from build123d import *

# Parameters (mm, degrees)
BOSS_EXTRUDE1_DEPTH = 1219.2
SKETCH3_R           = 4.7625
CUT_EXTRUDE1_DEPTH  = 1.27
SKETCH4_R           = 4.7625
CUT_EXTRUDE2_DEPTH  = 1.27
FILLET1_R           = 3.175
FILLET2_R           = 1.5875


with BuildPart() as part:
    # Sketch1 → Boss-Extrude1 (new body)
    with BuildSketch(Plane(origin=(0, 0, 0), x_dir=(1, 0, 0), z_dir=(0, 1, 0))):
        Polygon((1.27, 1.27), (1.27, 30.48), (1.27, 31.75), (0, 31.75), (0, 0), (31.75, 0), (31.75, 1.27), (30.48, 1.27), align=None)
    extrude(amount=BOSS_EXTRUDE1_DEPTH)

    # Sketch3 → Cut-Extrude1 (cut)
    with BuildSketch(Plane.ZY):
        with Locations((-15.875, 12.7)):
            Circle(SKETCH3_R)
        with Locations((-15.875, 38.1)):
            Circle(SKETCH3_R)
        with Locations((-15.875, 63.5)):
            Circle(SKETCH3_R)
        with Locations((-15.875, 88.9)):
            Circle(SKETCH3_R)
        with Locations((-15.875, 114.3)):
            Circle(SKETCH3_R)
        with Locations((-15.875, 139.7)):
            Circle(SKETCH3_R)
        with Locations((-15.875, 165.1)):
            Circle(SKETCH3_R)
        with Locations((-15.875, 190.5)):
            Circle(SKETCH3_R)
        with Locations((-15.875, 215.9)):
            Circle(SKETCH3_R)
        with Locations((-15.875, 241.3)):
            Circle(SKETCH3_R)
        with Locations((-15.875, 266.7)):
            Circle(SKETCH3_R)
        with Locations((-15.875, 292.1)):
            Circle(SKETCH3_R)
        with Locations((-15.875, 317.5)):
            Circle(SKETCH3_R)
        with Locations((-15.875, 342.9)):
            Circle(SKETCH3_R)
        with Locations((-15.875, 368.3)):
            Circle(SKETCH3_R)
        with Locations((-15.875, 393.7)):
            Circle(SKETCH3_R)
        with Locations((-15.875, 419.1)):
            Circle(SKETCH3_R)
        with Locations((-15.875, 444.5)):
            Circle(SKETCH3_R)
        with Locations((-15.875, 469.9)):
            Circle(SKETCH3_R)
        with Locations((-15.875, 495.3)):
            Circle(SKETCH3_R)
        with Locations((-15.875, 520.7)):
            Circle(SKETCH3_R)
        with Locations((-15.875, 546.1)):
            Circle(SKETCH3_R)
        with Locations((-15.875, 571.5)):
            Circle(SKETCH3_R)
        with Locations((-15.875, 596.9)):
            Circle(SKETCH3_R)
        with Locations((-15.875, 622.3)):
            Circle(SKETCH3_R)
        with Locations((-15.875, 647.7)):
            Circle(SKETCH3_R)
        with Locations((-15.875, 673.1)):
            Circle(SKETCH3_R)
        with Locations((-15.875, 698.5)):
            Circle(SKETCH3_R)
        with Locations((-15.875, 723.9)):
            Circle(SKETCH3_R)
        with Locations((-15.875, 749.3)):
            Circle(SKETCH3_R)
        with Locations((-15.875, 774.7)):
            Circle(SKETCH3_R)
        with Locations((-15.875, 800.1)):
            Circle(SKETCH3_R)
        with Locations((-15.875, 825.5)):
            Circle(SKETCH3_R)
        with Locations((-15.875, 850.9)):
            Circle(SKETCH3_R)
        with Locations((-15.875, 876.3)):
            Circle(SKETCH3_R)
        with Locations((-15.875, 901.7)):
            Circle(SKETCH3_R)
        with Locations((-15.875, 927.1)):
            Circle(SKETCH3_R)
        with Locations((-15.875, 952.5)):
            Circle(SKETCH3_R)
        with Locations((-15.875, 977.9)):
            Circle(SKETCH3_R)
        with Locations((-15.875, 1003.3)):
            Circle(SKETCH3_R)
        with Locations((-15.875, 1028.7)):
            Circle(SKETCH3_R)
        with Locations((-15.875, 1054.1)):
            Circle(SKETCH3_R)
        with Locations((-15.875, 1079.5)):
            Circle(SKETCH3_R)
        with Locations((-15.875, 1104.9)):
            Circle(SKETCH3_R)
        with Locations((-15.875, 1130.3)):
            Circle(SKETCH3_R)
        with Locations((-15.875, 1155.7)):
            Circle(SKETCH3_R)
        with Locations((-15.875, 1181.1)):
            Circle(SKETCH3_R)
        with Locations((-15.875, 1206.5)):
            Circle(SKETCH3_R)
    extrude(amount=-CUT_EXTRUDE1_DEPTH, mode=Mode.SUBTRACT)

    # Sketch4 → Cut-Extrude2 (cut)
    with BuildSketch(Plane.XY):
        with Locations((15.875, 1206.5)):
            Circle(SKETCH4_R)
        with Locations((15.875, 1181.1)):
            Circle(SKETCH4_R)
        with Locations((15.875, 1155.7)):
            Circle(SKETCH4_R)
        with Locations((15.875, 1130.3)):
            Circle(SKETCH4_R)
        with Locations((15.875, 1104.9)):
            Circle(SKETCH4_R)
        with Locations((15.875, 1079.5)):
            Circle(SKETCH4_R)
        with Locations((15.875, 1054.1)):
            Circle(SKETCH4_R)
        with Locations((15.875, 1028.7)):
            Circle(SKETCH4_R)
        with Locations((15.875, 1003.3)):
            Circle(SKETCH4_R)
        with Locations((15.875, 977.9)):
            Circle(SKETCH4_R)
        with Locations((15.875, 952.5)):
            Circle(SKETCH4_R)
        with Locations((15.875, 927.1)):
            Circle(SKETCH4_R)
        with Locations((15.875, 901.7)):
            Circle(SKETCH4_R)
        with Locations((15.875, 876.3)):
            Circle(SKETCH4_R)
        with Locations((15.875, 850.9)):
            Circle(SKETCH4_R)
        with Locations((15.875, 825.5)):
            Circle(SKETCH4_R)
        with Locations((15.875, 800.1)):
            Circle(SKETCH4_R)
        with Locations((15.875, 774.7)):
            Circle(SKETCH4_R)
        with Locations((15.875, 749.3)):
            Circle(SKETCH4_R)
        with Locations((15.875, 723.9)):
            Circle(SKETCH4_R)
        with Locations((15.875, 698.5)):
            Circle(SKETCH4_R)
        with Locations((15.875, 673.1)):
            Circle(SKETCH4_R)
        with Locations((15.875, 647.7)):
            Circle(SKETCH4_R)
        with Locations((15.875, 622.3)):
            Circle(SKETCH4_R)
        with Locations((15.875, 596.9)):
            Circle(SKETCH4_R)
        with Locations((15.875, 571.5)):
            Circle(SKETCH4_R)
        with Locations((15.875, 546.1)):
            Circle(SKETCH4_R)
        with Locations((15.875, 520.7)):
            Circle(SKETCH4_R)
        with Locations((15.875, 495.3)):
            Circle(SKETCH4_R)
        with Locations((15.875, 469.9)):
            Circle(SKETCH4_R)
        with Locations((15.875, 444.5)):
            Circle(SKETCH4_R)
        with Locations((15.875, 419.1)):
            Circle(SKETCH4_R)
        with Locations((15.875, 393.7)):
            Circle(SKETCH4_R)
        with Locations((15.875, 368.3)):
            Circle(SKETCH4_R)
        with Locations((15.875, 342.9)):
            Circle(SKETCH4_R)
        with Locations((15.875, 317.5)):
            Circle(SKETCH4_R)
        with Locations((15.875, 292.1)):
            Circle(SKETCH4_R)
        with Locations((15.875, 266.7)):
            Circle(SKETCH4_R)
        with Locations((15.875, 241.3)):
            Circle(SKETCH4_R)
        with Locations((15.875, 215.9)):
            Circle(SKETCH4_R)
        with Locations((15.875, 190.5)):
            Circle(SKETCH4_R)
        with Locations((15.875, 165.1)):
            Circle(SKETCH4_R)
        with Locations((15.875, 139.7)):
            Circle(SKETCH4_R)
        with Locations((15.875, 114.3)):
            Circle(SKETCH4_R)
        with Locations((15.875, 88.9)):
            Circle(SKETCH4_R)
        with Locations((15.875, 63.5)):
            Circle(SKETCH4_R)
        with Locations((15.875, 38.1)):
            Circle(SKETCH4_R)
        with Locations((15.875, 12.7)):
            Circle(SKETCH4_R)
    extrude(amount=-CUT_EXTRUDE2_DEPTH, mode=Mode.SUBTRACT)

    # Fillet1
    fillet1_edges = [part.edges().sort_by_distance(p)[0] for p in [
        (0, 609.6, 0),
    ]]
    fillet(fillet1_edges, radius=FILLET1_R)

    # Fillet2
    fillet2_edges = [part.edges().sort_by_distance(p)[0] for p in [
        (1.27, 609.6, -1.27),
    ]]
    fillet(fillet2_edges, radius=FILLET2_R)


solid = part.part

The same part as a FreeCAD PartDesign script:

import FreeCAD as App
import Part
import Sketcher
from FreeCAD import Vector
Q = App.Units.Quantity


def edges_at(feature, points):
    """Names of the edges that pass closest to the given points."""
    edges = feature.Shape.Edges
    near = lambda p: min(range(len(edges)), key=lambda i: edges[i].distToShape(Part.Vertex(*p))[0])
    return sorted({f"Edge{near(p) + 1}" for p in points})


def add_polygon(sketch, points):
    """Adds a closed chain of lines whose ends are joined by coincident constraints."""
    first, n = sketch.GeometryCount, len(points)
    for a, b in zip(points, points[1:] + points[:1]):
        sketch.addGeometry(Part.LineSegment(App.Vector(*a, 0), App.Vector(*b, 0)), False)
    for i in range(n):
        sketch.addConstraint(Sketcher.Constraint("Coincident", first + i, 2, first + (i + 1) % n, 1))

doc = App.newDocument("Part")
body = doc.addObject("PartDesign::Body", "Body")

sketch1 = doc.addObject("Sketcher::SketchObject", "Sketch")
body.addObject(sketch1)
sketch1.AttachmentSupport = (doc.XZ_Plane, [""])
sketch1.MapMode = "FlatFace"
add_polygon(sketch1, [(1.3, -1.3), (1.3, -31.8), (0, -31.8), (0, 0), (31.8, 0), (31.8, -1.3)])
sketch1.addConstraint(Sketcher.Constraint("Vertical", 0))
sketch1.addConstraint(Sketcher.Constraint("Horizontal", 1))
sketch1.addConstraint(Sketcher.Constraint("Vertical", 2))
sketch1.addConstraint(Sketcher.Constraint("Horizontal", 3))
sketch1.addConstraint(Sketcher.Constraint("Vertical", 4))
sketch1.addConstraint(Sketcher.Constraint("Horizontal", 5))
sketch1.addConstraint(Sketcher.Constraint("Coincident", 2, 2, -1, 1))
sketch1.addConstraint(Sketcher.Constraint("Equal", 5, 0))
sketch1.addConstraint(Sketcher.Constraint("Equal", 3, 2))
sketch1.addConstraint(Sketcher.Constraint("DistanceX", 5, 2, 5, 1, Q("1.2 in")))
sketch1.addConstraint(Sketcher.Constraint("DistanceX", 1, 2, 1, 1, Q("0.05 in")))
pad1 = doc.addObject("PartDesign::Pad", "Pad")
body.addObject(pad1)
pad1.Profile = sketch1
pad1.Length = Q("48 in")
pad1.Reversed = True

sketch2 = doc.addObject("Sketcher::SketchObject", "Sketch001")
body.addObject(sketch2)
sketch2.AttachmentSupport = (doc.YZ_Plane, [""])
sketch2.MapMode = "FlatFace"
sketch2.addGeometry(Part.Circle(Vector(12.7, -15.9, 0), Vector(0, 0, 1), 4.8), False)
sketch2.addGeometry(Part.Circle(Vector(38.1, -15.9, 0), Vector(0, 0, 1), 4.8), False)
sketch2.addGeometry(Part.Circle(Vector(63.5, -15.9, 0), Vector(0, 0, 1), 4.8), False)
sketch2.addGeometry(Part.Circle(Vector(88.9, -15.9, 0), Vector(0, 0, 1), 4.8), False)
sketch2.addGeometry(Part.Circle(Vector(114.3, -15.9, 0), Vector(0, 0, 1), 4.8), False)
sketch2.addGeometry(Part.Circle(Vector(139.7, -15.9, 0), Vector(0, 0, 1), 4.8), False)
sketch2.addGeometry(Part.Circle(Vector(165.1, -15.9, 0), Vector(0, 0, 1), 4.8), False)
sketch2.addGeometry(Part.Circle(Vector(190.5, -15.9, 0), Vector(0, 0, 1), 4.8), False)
sketch2.addGeometry(Part.Circle(Vector(215.9, -15.9, 0), Vector(0, 0, 1), 4.8), False)
sketch2.addGeometry(Part.Circle(Vector(241.3, -15.9, 0), Vector(0, 0, 1), 4.8), False)
sketch2.addGeometry(Part.Circle(Vector(266.7, -15.9, 0), Vector(0, 0, 1), 4.8), False)
sketch2.addGeometry(Part.Circle(Vector(292.1, -15.9, 0), Vector(0, 0, 1), 4.8), False)
sketch2.addGeometry(Part.Circle(Vector(317.5, -15.9, 0), Vector(0, 0, 1), 4.8), False)
sketch2.addGeometry(Part.Circle(Vector(342.9, -15.9, 0), Vector(0, 0, 1), 4.8), False)
sketch2.addGeometry(Part.Circle(Vector(368.3, -15.9, 0), Vector(0, 0, 1), 4.8), False)
sketch2.addGeometry(Part.Circle(Vector(393.7, -15.9, 0), Vector(0, 0, 1), 4.8), False)
sketch2.addGeometry(Part.Circle(Vector(419.1, -15.9, 0), Vector(0, 0, 1), 4.8), False)
sketch2.addGeometry(Part.Circle(Vector(444.5, -15.9, 0), Vector(0, 0, 1), 4.8), False)
sketch2.addGeometry(Part.Circle(Vector(469.9, -15.9, 0), Vector(0, 0, 1), 4.8), False)
sketch2.addGeometry(Part.Circle(Vector(495.3, -15.9, 0), Vector(0, 0, 1), 4.8), False)
sketch2.addGeometry(Part.Circle(Vector(520.7, -15.9, 0), Vector(0, 0, 1), 4.8), False)
sketch2.addGeometry(Part.Circle(Vector(546.1, -15.9, 0), Vector(0, 0, 1), 4.8), False)
sketch2.addGeometry(Part.Circle(Vector(571.5, -15.9, 0), Vector(0, 0, 1), 4.8), False)
sketch2.addGeometry(Part.Circle(Vector(596.9, -15.9, 0), Vector(0, 0, 1), 4.8), False)
sketch2.addGeometry(Part.Circle(Vector(622.3, -15.9, 0), Vector(0, 0, 1), 4.8), False)
sketch2.addGeometry(Part.Circle(Vector(647.7, -15.9, 0), Vector(0, 0, 1), 4.8), False)
sketch2.addGeometry(Part.Circle(Vector(673.1, -15.9, 0), Vector(0, 0, 1), 4.8), False)
sketch2.addGeometry(Part.Circle(Vector(698.5, -15.9, 0), Vector(0, 0, 1), 4.8), False)
sketch2.addGeometry(Part.Circle(Vector(723.9, -15.9, 0), Vector(0, 0, 1), 4.8), False)
sketch2.addGeometry(Part.Circle(Vector(749.3, -15.9, 0), Vector(0, 0, 1), 4.8), False)
sketch2.addGeometry(Part.Circle(Vector(774.7, -15.9, 0), Vector(0, 0, 1), 4.8), False)
sketch2.addGeometry(Part.Circle(Vector(800.1, -15.9, 0), Vector(0, 0, 1), 4.8), False)
sketch2.addGeometry(Part.Circle(Vector(825.5, -15.9, 0), Vector(0, 0, 1), 4.8), False)
sketch2.addGeometry(Part.Circle(Vector(850.9, -15.9, 0), Vector(0, 0, 1), 4.8), False)
sketch2.addGeometry(Part.Circle(Vector(876.3, -15.9, 0), Vector(0, 0, 1), 4.8), False)
sketch2.addGeometry(Part.Circle(Vector(901.7, -15.9, 0), Vector(0, 0, 1), 4.8), False)
sketch2.addGeometry(Part.Circle(Vector(927.1, -15.9, 0), Vector(0, 0, 1), 4.8), False)
sketch2.addGeometry(Part.Circle(Vector(952.5, -15.9, 0), Vector(0, 0, 1), 4.8), False)
sketch2.addGeometry(Part.Circle(Vector(977.9, -15.9, 0), Vector(0, 0, 1), 4.8), False)
sketch2.addGeometry(Part.Circle(Vector(1003.3, -15.9, 0), Vector(0, 0, 1), 4.8), False)
sketch2.addGeometry(Part.Circle(Vector(1028.7, -15.9, 0), Vector(0, 0, 1), 4.8), False)
sketch2.addGeometry(Part.Circle(Vector(1054.1, -15.9, 0), Vector(0, 0, 1), 4.8), False)
sketch2.addGeometry(Part.Circle(Vector(1079.5, -15.9, 0), Vector(0, 0, 1), 4.8), False)
sketch2.addGeometry(Part.Circle(Vector(1104.9, -15.9, 0), Vector(0, 0, 1), 4.8), False)
sketch2.addGeometry(Part.Circle(Vector(1130.3, -15.9, 0), Vector(0, 0, 1), 4.8), False)
sketch2.addGeometry(Part.Circle(Vector(1155.7, -15.9, 0), Vector(0, 0, 1), 4.8), False)
sketch2.addGeometry(Part.Circle(Vector(1181.1, -15.9, 0), Vector(0, 0, 1), 4.8), False)
sketch2.addGeometry(Part.Circle(Vector(1206.5, -15.9, 0), Vector(0, 0, 1), 4.8), False)
sketch2.addConstraint(Sketcher.Constraint("Equal", 0, 1))
sketch2.addConstraint(Sketcher.Constraint("Equal", 1, 2))
sketch2.addConstraint(Sketcher.Constraint("Equal", 2, 3))
sketch2.addConstraint(Sketcher.Constraint("Equal", 3, 4))
sketch2.addConstraint(Sketcher.Constraint("Equal", 4, 5))
sketch2.addConstraint(Sketcher.Constraint("Equal", 5, 6))
sketch2.addConstraint(Sketcher.Constraint("Equal", 6, 7))
sketch2.addConstraint(Sketcher.Constraint("Equal", 7, 8))
sketch2.addConstraint(Sketcher.Constraint("Equal", 8, 9))
sketch2.addConstraint(Sketcher.Constraint("Equal", 9, 10))
sketch2.addConstraint(Sketcher.Constraint("Equal", 10, 11))
sketch2.addConstraint(Sketcher.Constraint("Equal", 11, 12))
sketch2.addConstraint(Sketcher.Constraint("Equal", 12, 13))
sketch2.addConstraint(Sketcher.Constraint("Equal", 13, 14))
sketch2.addConstraint(Sketcher.Constraint("Equal", 14, 15))
sketch2.addConstraint(Sketcher.Constraint("Equal", 15, 16))
sketch2.addConstraint(Sketcher.Constraint("Equal", 16, 17))
sketch2.addConstraint(Sketcher.Constraint("Equal", 17, 18))
sketch2.addConstraint(Sketcher.Constraint("Equal", 18, 19))
sketch2.addConstraint(Sketcher.Constraint("Equal", 19, 20))
sketch2.addConstraint(Sketcher.Constraint("Equal", 20, 21))
sketch2.addConstraint(Sketcher.Constraint("Equal", 21, 22))
sketch2.addConstraint(Sketcher.Constraint("Equal", 22, 23))
sketch2.addConstraint(Sketcher.Constraint("Equal", 23, 24))
sketch2.addConstraint(Sketcher.Constraint("Equal", 24, 25))
sketch2.addConstraint(Sketcher.Constraint("Equal", 25, 26))
sketch2.addConstraint(Sketcher.Constraint("Equal", 26, 27))
sketch2.addConstraint(Sketcher.Constraint("Equal", 27, 28))
sketch2.addConstraint(Sketcher.Constraint("Equal", 28, 29))
sketch2.addConstraint(Sketcher.Constraint("Equal", 29, 30))
sketch2.addConstraint(Sketcher.Constraint("Equal", 30, 31))
sketch2.addConstraint(Sketcher.Constraint("Equal", 31, 32))
sketch2.addConstraint(Sketcher.Constraint("Equal", 32, 33))
sketch2.addConstraint(Sketcher.Constraint("Equal", 33, 34))
sketch2.addConstraint(Sketcher.Constraint("Equal", 34, 35))
sketch2.addConstraint(Sketcher.Constraint("Equal", 35, 36))
sketch2.addConstraint(Sketcher.Constraint("Equal", 36, 37))
sketch2.addConstraint(Sketcher.Constraint("Equal", 37, 38))
sketch2.addConstraint(Sketcher.Constraint("Equal", 38, 39))
sketch2.addConstraint(Sketcher.Constraint("Equal", 39, 40))
sketch2.addConstraint(Sketcher.Constraint("Equal", 40, 41))
sketch2.addConstraint(Sketcher.Constraint("Equal", 41, 42))
sketch2.addConstraint(Sketcher.Constraint("Equal", 42, 43))
sketch2.addConstraint(Sketcher.Constraint("Equal", 43, 44))
sketch2.addConstraint(Sketcher.Constraint("Equal", 44, 45))
sketch2.addConstraint(Sketcher.Constraint("Equal", 45, 46))
sketch2.addConstraint(Sketcher.Constraint("Equal", 46, 47))
sketch2.addConstraint(Sketcher.Constraint("Horizontal", 0, 3, 1, 3))
sketch2.addConstraint(Sketcher.Constraint("Horizontal", 1, 3, 2, 3))
sketch2.addConstraint(Sketcher.Constraint("Horizontal", 2, 3, 3, 3))
sketch2.addConstraint(Sketcher.Constraint("Horizontal", 3, 3, 4, 3))
sketch2.addConstraint(Sketcher.Constraint("Horizontal", 4, 3, 5, 3))
sketch2.addConstraint(Sketcher.Constraint("Horizontal", 5, 3, 6, 3))
sketch2.addConstraint(Sketcher.Constraint("Horizontal", 6, 3, 7, 3))
sketch2.addConstraint(Sketcher.Constraint("Horizontal", 7, 3, 8, 3))
sketch2.addConstraint(Sketcher.Constraint("Horizontal", 8, 3, 9, 3))
sketch2.addConstraint(Sketcher.Constraint("Horizontal", 9, 3, 10, 3))
sketch2.addConstraint(Sketcher.Constraint("Horizontal", 10, 3, 11, 3))
sketch2.addConstraint(Sketcher.Constraint("Horizontal", 11, 3, 12, 3))
sketch2.addConstraint(Sketcher.Constraint("Horizontal", 12, 3, 13, 3))
sketch2.addConstraint(Sketcher.Constraint("Horizontal", 13, 3, 14, 3))
sketch2.addConstraint(Sketcher.Constraint("Horizontal", 14, 3, 15, 3))
sketch2.addConstraint(Sketcher.Constraint("Horizontal", 15, 3, 16, 3))
sketch2.addConstraint(Sketcher.Constraint("Horizontal", 16, 3, 17, 3))
sketch2.addConstraint(Sketcher.Constraint("Horizontal", 17, 3, 18, 3))
sketch2.addConstraint(Sketcher.Constraint("Horizontal", 18, 3, 19, 3))
sketch2.addConstraint(Sketcher.Constraint("Horizontal", 19, 3, 20, 3))
sketch2.addConstraint(Sketcher.Constraint("Horizontal", 20, 3, 21, 3))
sketch2.addConstraint(Sketcher.Constraint("Horizontal", 21, 3, 22, 3))
sketch2.addConstraint(Sketcher.Constraint("Horizontal", 22, 3, 23, 3))
sketch2.addConstraint(Sketcher.Constraint("Horizontal", 23, 3, 24, 3))
sketch2.addConstraint(Sketcher.Constraint("Horizontal", 24, 3, 25, 3))
sketch2.addConstraint(Sketcher.Constraint("Horizontal", 25, 3, 26, 3))
sketch2.addConstraint(Sketcher.Constraint("Horizontal", 26, 3, 27, 3))
sketch2.addConstraint(Sketcher.Constraint("Horizontal", 27, 3, 28, 3))
sketch2.addConstraint(Sketcher.Constraint("Horizontal", 28, 3, 29, 3))
sketch2.addConstraint(Sketcher.Constraint("Horizontal", 29, 3, 30, 3))
sketch2.addConstraint(Sketcher.Constraint("Horizontal", 30, 3, 31, 3))
sketch2.addConstraint(Sketcher.Constraint("Horizontal", 31, 3, 32, 3))
sketch2.addConstraint(Sketcher.Constraint("Horizontal", 32, 3, 33, 3))
sketch2.addConstraint(Sketcher.Constraint("Horizontal", 33, 3, 34, 3))
sketch2.addConstraint(Sketcher.Constraint("Horizontal", 34, 3, 35, 3))
sketch2.addConstraint(Sketcher.Constraint("Horizontal", 35, 3, 36, 3))
sketch2.addConstraint(Sketcher.Constraint("Horizontal", 36, 3, 37, 3))
sketch2.addConstraint(Sketcher.Constraint("Horizontal", 37, 3, 38, 3))
sketch2.addConstraint(Sketcher.Constraint("Horizontal", 38, 3, 39, 3))
sketch2.addConstraint(Sketcher.Constraint("Horizontal", 39, 3, 40, 3))
sketch2.addConstraint(Sketcher.Constraint("Horizontal", 40, 3, 41, 3))
sketch2.addConstraint(Sketcher.Constraint("Horizontal", 41, 3, 42, 3))
sketch2.addConstraint(Sketcher.Constraint("Horizontal", 42, 3, 43, 3))
sketch2.addConstraint(Sketcher.Constraint("Horizontal", 43, 3, 44, 3))
sketch2.addConstraint(Sketcher.Constraint("Horizontal", 44, 3, 45, 3))
sketch2.addConstraint(Sketcher.Constraint("Horizontal", 45, 3, 46, 3))
sketch2.addConstraint(Sketcher.Constraint("Horizontal", 46, 3, 47, 3))
sketch2.addConstraint(Sketcher.Constraint("Diameter", 0, Q("0.375 in")))
sketch2.addConstraint(Sketcher.Constraint("DistanceX", 0, 3, 1, 3, Q("1 in")))
sketch2.addConstraint(Sketcher.Constraint("DistanceX", 1, 3, 2, 3, Q("1 in")))
sketch2.addConstraint(Sketcher.Constraint("DistanceX", 2, 3, 3, 3, Q("1 in")))
sketch2.addConstraint(Sketcher.Constraint("DistanceX", 3, 3, 4, 3, Q("1 in")))
sketch2.addConstraint(Sketcher.Constraint("DistanceX", 4, 3, 5, 3, Q("1 in")))
sketch2.addConstraint(Sketcher.Constraint("DistanceX", 5, 3, 6, 3, Q("1 in")))
sketch2.addConstraint(Sketcher.Constraint("DistanceX", 6, 3, 7, 3, Q("1 in")))
sketch2.addConstraint(Sketcher.Constraint("DistanceX", 7, 3, 8, 3, Q("1 in")))
sketch2.addConstraint(Sketcher.Constraint("DistanceX", 8, 3, 9, 3, Q("1 in")))
sketch2.addConstraint(Sketcher.Constraint("DistanceX", 9, 3, 10, 3, Q("1 in")))
sketch2.addConstraint(Sketcher.Constraint("DistanceX", 10, 3, 11, 3, Q("1 in")))
sketch2.addConstraint(Sketcher.Constraint("DistanceX", 11, 3, 12, 3, Q("1 in")))
sketch2.addConstraint(Sketcher.Constraint("DistanceX", 12, 3, 13, 3, Q("1 in")))
sketch2.addConstraint(Sketcher.Constraint("DistanceX", 13, 3, 14, 3, Q("1 in")))
sketch2.addConstraint(Sketcher.Constraint("DistanceX", 14, 3, 15, 3, Q("1 in")))
sketch2.addConstraint(Sketcher.Constraint("DistanceX", 15, 3, 16, 3, Q("1 in")))
sketch2.addConstraint(Sketcher.Constraint("DistanceX", 16, 3, 17, 3, Q("1 in")))
sketch2.addConstraint(Sketcher.Constraint("DistanceX", 17, 3, 18, 3, Q("1 in")))
sketch2.addConstraint(Sketcher.Constraint("DistanceX", 18, 3, 19, 3, Q("1 in")))
sketch2.addConstraint(Sketcher.Constraint("DistanceX", 19, 3, 20, 3, Q("1 in")))
sketch2.addConstraint(Sketcher.Constraint("DistanceX", 20, 3, 21, 3, Q("1 in")))
sketch2.addConstraint(Sketcher.Constraint("DistanceX", 21, 3, 22, 3, Q("1 in")))
sketch2.addConstraint(Sketcher.Constraint("DistanceX", 22, 3, 23, 3, Q("1 in")))
sketch2.addConstraint(Sketcher.Constraint("DistanceX", 23, 3, 24, 3, Q("1 in")))
sketch2.addConstraint(Sketcher.Constraint("DistanceX", 24, 3, 25, 3, Q("1 in")))
sketch2.addConstraint(Sketcher.Constraint("DistanceX", 25, 3, 26, 3, Q("1 in")))
sketch2.addConstraint(Sketcher.Constraint("DistanceX", 26, 3, 27, 3, Q("1 in")))
sketch2.addConstraint(Sketcher.Constraint("DistanceX", 27, 3, 28, 3, Q("1 in")))
sketch2.addConstraint(Sketcher.Constraint("DistanceX", 28, 3, 29, 3, Q("1 in")))
sketch2.addConstraint(Sketcher.Constraint("DistanceX", 29, 3, 30, 3, Q("1 in")))
sketch2.addConstraint(Sketcher.Constraint("DistanceX", 30, 3, 31, 3, Q("1 in")))
sketch2.addConstraint(Sketcher.Constraint("DistanceX", 31, 3, 32, 3, Q("1 in")))
sketch2.addConstraint(Sketcher.Constraint("DistanceX", 32, 3, 33, 3, Q("1 in")))
sketch2.addConstraint(Sketcher.Constraint("DistanceX", 33, 3, 34, 3, Q("1 in")))
sketch2.addConstraint(Sketcher.Constraint("DistanceX", 34, 3, 35, 3, Q("1 in")))
sketch2.addConstraint(Sketcher.Constraint("DistanceX", 35, 3, 36, 3, Q("1 in")))
sketch2.addConstraint(Sketcher.Constraint("DistanceX", 36, 3, 37, 3, Q("1 in")))
sketch2.addConstraint(Sketcher.Constraint("DistanceX", 37, 3, 38, 3, Q("1 in")))
sketch2.addConstraint(Sketcher.Constraint("DistanceX", 38, 3, 39, 3, Q("1 in")))
sketch2.addConstraint(Sketcher.Constraint("DistanceX", 39, 3, 40, 3, Q("1 in")))
sketch2.addConstraint(Sketcher.Constraint("DistanceX", 40, 3, 41, 3, Q("1 in")))
sketch2.addConstraint(Sketcher.Constraint("DistanceX", 41, 3, 42, 3, Q("1 in")))
sketch2.addConstraint(Sketcher.Constraint("DistanceX", 42, 3, 43, 3, Q("1 in")))
sketch2.addConstraint(Sketcher.Constraint("DistanceX", 43, 3, 44, 3, Q("1 in")))
sketch2.addConstraint(Sketcher.Constraint("DistanceX", 44, 3, 45, 3, Q("1 in")))
sketch2.addConstraint(Sketcher.Constraint("DistanceX", 45, 3, 46, 3, Q("1 in")))
sketch2.addConstraint(Sketcher.Constraint("DistanceX", 46, 3, 47, 3, Q("1 in")))
sketch2.addConstraint(Sketcher.Constraint("DistanceX", -1, 1, 0, 3, Q("0.5 in")))
sketch2.addConstraint(Sketcher.Constraint("DistanceY", 0, 3, -1, 1, Q("0.625 in")))
pocket1 = doc.addObject("PartDesign::Pocket", "Pocket")
body.addObject(pocket1)
pocket1.Profile = sketch2
pocket1.Length = Q("0.05 in")
pocket1.Reversed = True

sketch3 = doc.addObject("Sketcher::SketchObject", "Sketch002")
body.addObject(sketch3)
sketch3.AttachmentSupport = (doc.XY_Plane, [""])
sketch3.MapMode = "FlatFace"
sketch3.addGeometry(Part.Circle(Vector(15.9, 1206.5, 0), Vector(0, 0, 1), 4.8), False)
sketch3.addGeometry(Part.Circle(Vector(15.9, 1181.1, 0), Vector(0, 0, 1), 4.8), False)
sketch3.addGeometry(Part.Circle(Vector(15.9, 1155.7, 0), Vector(0, 0, 1), 4.8), False)
sketch3.addGeometry(Part.Circle(Vector(15.9, 1130.3, 0), Vector(0, 0, 1), 4.8), False)
sketch3.addGeometry(Part.Circle(Vector(15.9, 1104.9, 0), Vector(0, 0, 1), 4.8), False)
sketch3.addGeometry(Part.Circle(Vector(15.9, 1079.5, 0), Vector(0, 0, 1), 4.8), False)
sketch3.addGeometry(Part.Circle(Vector(15.9, 1054.1, 0), Vector(0, 0, 1), 4.8), False)
sketch3.addGeometry(Part.Circle(Vector(15.9, 1028.7, 0), Vector(0, 0, 1), 4.8), False)
sketch3.addGeometry(Part.Circle(Vector(15.9, 1003.3, 0), Vector(0, 0, 1), 4.8), False)
sketch3.addGeometry(Part.Circle(Vector(15.9, 977.9, 0), Vector(0, 0, 1), 4.8), False)
sketch3.addGeometry(Part.Circle(Vector(15.9, 952.5, 0), Vector(0, 0, 1), 4.8), False)
sketch3.addGeometry(Part.Circle(Vector(15.9, 927.1, 0), Vector(0, 0, 1), 4.8), False)
sketch3.addGeometry(Part.Circle(Vector(15.9, 901.7, 0), Vector(0, 0, 1), 4.8), False)
sketch3.addGeometry(Part.Circle(Vector(15.9, 876.3, 0), Vector(0, 0, 1), 4.8), False)
sketch3.addGeometry(Part.Circle(Vector(15.9, 850.9, 0), Vector(0, 0, 1), 4.8), False)
sketch3.addGeometry(Part.Circle(Vector(15.9, 825.5, 0), Vector(0, 0, 1), 4.8), False)
sketch3.addGeometry(Part.Circle(Vector(15.9, 800.1, 0), Vector(0, 0, 1), 4.8), False)
sketch3.addGeometry(Part.Circle(Vector(15.9, 774.7, 0), Vector(0, 0, 1), 4.8), False)
sketch3.addGeometry(Part.Circle(Vector(15.9, 749.3, 0), Vector(0, 0, 1), 4.8), False)
sketch3.addGeometry(Part.Circle(Vector(15.9, 723.9, 0), Vector(0, 0, 1), 4.8), False)
sketch3.addGeometry(Part.Circle(Vector(15.9, 698.5, 0), Vector(0, 0, 1), 4.8), False)
sketch3.addGeometry(Part.Circle(Vector(15.9, 673.1, 0), Vector(0, 0, 1), 4.8), False)
sketch3.addGeometry(Part.Circle(Vector(15.9, 647.7, 0), Vector(0, 0, 1), 4.8), False)
sketch3.addGeometry(Part.Circle(Vector(15.9, 622.3, 0), Vector(0, 0, 1), 4.8), False)
sketch3.addGeometry(Part.Circle(Vector(15.9, 596.9, 0), Vector(0, 0, 1), 4.8), False)
sketch3.addGeometry(Part.Circle(Vector(15.9, 571.5, 0), Vector(0, 0, 1), 4.8), False)
sketch3.addGeometry(Part.Circle(Vector(15.9, 546.1, 0), Vector(0, 0, 1), 4.8), False)
sketch3.addGeometry(Part.Circle(Vector(15.9, 520.7, 0), Vector(0, 0, 1), 4.8), False)
sketch3.addGeometry(Part.Circle(Vector(15.9, 495.3, 0), Vector(0, 0, 1), 4.8), False)
sketch3.addGeometry(Part.Circle(Vector(15.9, 469.9, 0), Vector(0, 0, 1), 4.8), False)
sketch3.addGeometry(Part.Circle(Vector(15.9, 444.5, 0), Vector(0, 0, 1), 4.8), False)
sketch3.addGeometry(Part.Circle(Vector(15.9, 419.1, 0), Vector(0, 0, 1), 4.8), False)
sketch3.addGeometry(Part.Circle(Vector(15.9, 393.7, 0), Vector(0, 0, 1), 4.8), False)
sketch3.addGeometry(Part.Circle(Vector(15.9, 368.3, 0), Vector(0, 0, 1), 4.8), False)
sketch3.addGeometry(Part.Circle(Vector(15.9, 342.9, 0), Vector(0, 0, 1), 4.8), False)
sketch3.addGeometry(Part.Circle(Vector(15.9, 317.5, 0), Vector(0, 0, 1), 4.8), False)
sketch3.addGeometry(Part.Circle(Vector(15.9, 292.1, 0), Vector(0, 0, 1), 4.8), False)
sketch3.addGeometry(Part.Circle(Vector(15.9, 266.7, 0), Vector(0, 0, 1), 4.8), False)
sketch3.addGeometry(Part.Circle(Vector(15.9, 241.3, 0), Vector(0, 0, 1), 4.8), False)
sketch3.addGeometry(Part.Circle(Vector(15.9, 215.9, 0), Vector(0, 0, 1), 4.8), False)
sketch3.addGeometry(Part.Circle(Vector(15.9, 190.5, 0), Vector(0, 0, 1), 4.8), False)
sketch3.addGeometry(Part.Circle(Vector(15.9, 165.1, 0), Vector(0, 0, 1), 4.8), False)
sketch3.addGeometry(Part.Circle(Vector(15.9, 139.7, 0), Vector(0, 0, 1), 4.8), False)
sketch3.addGeometry(Part.Circle(Vector(15.9, 114.3, 0), Vector(0, 0, 1), 4.8), False)
sketch3.addGeometry(Part.Circle(Vector(15.9, 88.9, 0), Vector(0, 0, 1), 4.8), False)
sketch3.addGeometry(Part.Circle(Vector(15.9, 63.5, 0), Vector(0, 0, 1), 4.8), False)
sketch3.addGeometry(Part.Circle(Vector(15.9, 38.1, 0), Vector(0, 0, 1), 4.8), False)
sketch3.addGeometry(Part.Circle(Vector(15.9, 12.7, 0), Vector(0, 0, 1), 4.8), False)
sketch3.addConstraint(Sketcher.Constraint("Equal", 0, 1))
sketch3.addConstraint(Sketcher.Constraint("Equal", 1, 2))
sketch3.addConstraint(Sketcher.Constraint("Equal", 2, 3))
sketch3.addConstraint(Sketcher.Constraint("Equal", 3, 4))
sketch3.addConstraint(Sketcher.Constraint("Equal", 4, 5))
sketch3.addConstraint(Sketcher.Constraint("Equal", 5, 6))
sketch3.addConstraint(Sketcher.Constraint("Equal", 6, 7))
sketch3.addConstraint(Sketcher.Constraint("Equal", 7, 8))
sketch3.addConstraint(Sketcher.Constraint("Equal", 8, 9))
sketch3.addConstraint(Sketcher.Constraint("Equal", 9, 10))
sketch3.addConstraint(Sketcher.Constraint("Equal", 10, 11))
sketch3.addConstraint(Sketcher.Constraint("Equal", 11, 12))
sketch3.addConstraint(Sketcher.Constraint("Equal", 12, 13))
sketch3.addConstraint(Sketcher.Constraint("Equal", 13, 14))
sketch3.addConstraint(Sketcher.Constraint("Equal", 14, 15))
sketch3.addConstraint(Sketcher.Constraint("Equal", 15, 16))
sketch3.addConstraint(Sketcher.Constraint("Equal", 16, 17))
sketch3.addConstraint(Sketcher.Constraint("Equal", 17, 18))
sketch3.addConstraint(Sketcher.Constraint("Equal", 18, 19))
sketch3.addConstraint(Sketcher.Constraint("Equal", 19, 20))
sketch3.addConstraint(Sketcher.Constraint("Equal", 20, 21))
sketch3.addConstraint(Sketcher.Constraint("Equal", 21, 22))
sketch3.addConstraint(Sketcher.Constraint("Equal", 22, 23))
sketch3.addConstraint(Sketcher.Constraint("Equal", 23, 24))
sketch3.addConstraint(Sketcher.Constraint("Equal", 24, 25))
sketch3.addConstraint(Sketcher.Constraint("Equal", 25, 26))
sketch3.addConstraint(Sketcher.Constraint("Equal", 26, 27))
sketch3.addConstraint(Sketcher.Constraint("Equal", 27, 28))
sketch3.addConstraint(Sketcher.Constraint("Equal", 28, 29))
sketch3.addConstraint(Sketcher.Constraint("Equal", 29, 30))
sketch3.addConstraint(Sketcher.Constraint("Equal", 30, 31))
sketch3.addConstraint(Sketcher.Constraint("Equal", 31, 32))
sketch3.addConstraint(Sketcher.Constraint("Equal", 32, 33))
sketch3.addConstraint(Sketcher.Constraint("Equal", 33, 34))
sketch3.addConstraint(Sketcher.Constraint("Equal", 34, 35))
sketch3.addConstraint(Sketcher.Constraint("Equal", 35, 36))
sketch3.addConstraint(Sketcher.Constraint("Equal", 36, 37))
sketch3.addConstraint(Sketcher.Constraint("Equal", 37, 38))
sketch3.addConstraint(Sketcher.Constraint("Equal", 38, 39))
sketch3.addConstraint(Sketcher.Constraint("Equal", 39, 40))
sketch3.addConstraint(Sketcher.Constraint("Equal", 40, 41))
sketch3.addConstraint(Sketcher.Constraint("Equal", 41, 42))
sketch3.addConstraint(Sketcher.Constraint("Equal", 42, 43))
sketch3.addConstraint(Sketcher.Constraint("Equal", 43, 44))
sketch3.addConstraint(Sketcher.Constraint("Equal", 44, 45))
sketch3.addConstraint(Sketcher.Constraint("Equal", 45, 46))
sketch3.addConstraint(Sketcher.Constraint("Equal", 46, 47))
sketch3.addConstraint(Sketcher.Constraint("Vertical", 0, 3, 1, 3))
sketch3.addConstraint(Sketcher.Constraint("Vertical", 1, 3, 2, 3))
sketch3.addConstraint(Sketcher.Constraint("Vertical", 2, 3, 3, 3))
sketch3.addConstraint(Sketcher.Constraint("Vertical", 3, 3, 4, 3))
sketch3.addConstraint(Sketcher.Constraint("Vertical", 4, 3, 5, 3))
sketch3.addConstraint(Sketcher.Constraint("Vertical", 5, 3, 6, 3))
sketch3.addConstraint(Sketcher.Constraint("Vertical", 6, 3, 7, 3))
sketch3.addConstraint(Sketcher.Constraint("Vertical", 7, 3, 8, 3))
sketch3.addConstraint(Sketcher.Constraint("Vertical", 8, 3, 9, 3))
sketch3.addConstraint(Sketcher.Constraint("Vertical", 9, 3, 10, 3))
sketch3.addConstraint(Sketcher.Constraint("Vertical", 10, 3, 11, 3))
sketch3.addConstraint(Sketcher.Constraint("Vertical", 11, 3, 12, 3))
sketch3.addConstraint(Sketcher.Constraint("Vertical", 12, 3, 13, 3))
sketch3.addConstraint(Sketcher.Constraint("Vertical", 13, 3, 14, 3))
sketch3.addConstraint(Sketcher.Constraint("Vertical", 14, 3, 15, 3))
sketch3.addConstraint(Sketcher.Constraint("Vertical", 15, 3, 16, 3))
sketch3.addConstraint(Sketcher.Constraint("Vertical", 16, 3, 17, 3))
sketch3.addConstraint(Sketcher.Constraint("Vertical", 17, 3, 18, 3))
sketch3.addConstraint(Sketcher.Constraint("Vertical", 18, 3, 19, 3))
sketch3.addConstraint(Sketcher.Constraint("Vertical", 19, 3, 20, 3))
sketch3.addConstraint(Sketcher.Constraint("Vertical", 20, 3, 21, 3))
sketch3.addConstraint(Sketcher.Constraint("Vertical", 21, 3, 22, 3))
sketch3.addConstraint(Sketcher.Constraint("Vertical", 22, 3, 23, 3))
sketch3.addConstraint(Sketcher.Constraint("Vertical", 23, 3, 24, 3))
sketch3.addConstraint(Sketcher.Constraint("Vertical", 24, 3, 25, 3))
sketch3.addConstraint(Sketcher.Constraint("Vertical", 25, 3, 26, 3))
sketch3.addConstraint(Sketcher.Constraint("Vertical", 26, 3, 27, 3))
sketch3.addConstraint(Sketcher.Constraint("Vertical", 27, 3, 28, 3))
sketch3.addConstraint(Sketcher.Constraint("Vertical", 28, 3, 29, 3))
sketch3.addConstraint(Sketcher.Constraint("Vertical", 29, 3, 30, 3))
sketch3.addConstraint(Sketcher.Constraint("Vertical", 30, 3, 31, 3))
sketch3.addConstraint(Sketcher.Constraint("Vertical", 31, 3, 32, 3))
sketch3.addConstraint(Sketcher.Constraint("Vertical", 32, 3, 33, 3))
sketch3.addConstraint(Sketcher.Constraint("Vertical", 33, 3, 34, 3))
sketch3.addConstraint(Sketcher.Constraint("Vertical", 34, 3, 35, 3))
sketch3.addConstraint(Sketcher.Constraint("Vertical", 35, 3, 36, 3))
sketch3.addConstraint(Sketcher.Constraint("Vertical", 36, 3, 37, 3))
sketch3.addConstraint(Sketcher.Constraint("Vertical", 37, 3, 38, 3))
sketch3.addConstraint(Sketcher.Constraint("Vertical", 38, 3, 39, 3))
sketch3.addConstraint(Sketcher.Constraint("Vertical", 39, 3, 40, 3))
sketch3.addConstraint(Sketcher.Constraint("Vertical", 40, 3, 41, 3))
sketch3.addConstraint(Sketcher.Constraint("Vertical", 41, 3, 42, 3))
sketch3.addConstraint(Sketcher.Constraint("Vertical", 42, 3, 43, 3))
sketch3.addConstraint(Sketcher.Constraint("Vertical", 43, 3, 44, 3))
sketch3.addConstraint(Sketcher.Constraint("Vertical", 44, 3, 45, 3))
sketch3.addConstraint(Sketcher.Constraint("Vertical", 45, 3, 46, 3))
sketch3.addConstraint(Sketcher.Constraint("Vertical", 46, 3, 47, 3))
sketch3.addConstraint(Sketcher.Constraint("Diameter", 0, Q("0.375 in")))
sketch3.addConstraint(Sketcher.Constraint("DistanceY", 1, 3, 0, 3, Q("1 in")))
sketch3.addConstraint(Sketcher.Constraint("DistanceY", 2, 3, 1, 3, Q("1 in")))
sketch3.addConstraint(Sketcher.Constraint("DistanceY", 3, 3, 2, 3, Q("1 in")))
sketch3.addConstraint(Sketcher.Constraint("DistanceY", 4, 3, 3, 3, Q("1 in")))
sketch3.addConstraint(Sketcher.Constraint("DistanceY", 5, 3, 4, 3, Q("1 in")))
sketch3.addConstraint(Sketcher.Constraint("DistanceY", 6, 3, 5, 3, Q("1 in")))
sketch3.addConstraint(Sketcher.Constraint("DistanceY", 7, 3, 6, 3, Q("1 in")))
sketch3.addConstraint(Sketcher.Constraint("DistanceY", 8, 3, 7, 3, Q("1 in")))
sketch3.addConstraint(Sketcher.Constraint("DistanceY", 9, 3, 8, 3, Q("1 in")))
sketch3.addConstraint(Sketcher.Constraint("DistanceY", 10, 3, 9, 3, Q("1 in")))
sketch3.addConstraint(Sketcher.Constraint("DistanceY", 11, 3, 10, 3, Q("1 in")))
sketch3.addConstraint(Sketcher.Constraint("DistanceY", 12, 3, 11, 3, Q("1 in")))
sketch3.addConstraint(Sketcher.Constraint("DistanceY", 13, 3, 12, 3, Q("1 in")))
sketch3.addConstraint(Sketcher.Constraint("DistanceY", 14, 3, 13, 3, Q("1 in")))
sketch3.addConstraint(Sketcher.Constraint("DistanceY", 15, 3, 14, 3, Q("1 in")))
sketch3.addConstraint(Sketcher.Constraint("DistanceY", 16, 3, 15, 3, Q("1 in")))
sketch3.addConstraint(Sketcher.Constraint("DistanceY", 17, 3, 16, 3, Q("1 in")))
sketch3.addConstraint(Sketcher.Constraint("DistanceY", 18, 3, 17, 3, Q("1 in")))
sketch3.addConstraint(Sketcher.Constraint("DistanceY", 19, 3, 18, 3, Q("1 in")))
sketch3.addConstraint(Sketcher.Constraint("DistanceY", 20, 3, 19, 3, Q("1 in")))
sketch3.addConstraint(Sketcher.Constraint("DistanceY", 21, 3, 20, 3, Q("1 in")))
sketch3.addConstraint(Sketcher.Constraint("DistanceY", 22, 3, 21, 3, Q("1 in")))
sketch3.addConstraint(Sketcher.Constraint("DistanceY", 23, 3, 22, 3, Q("1 in")))
sketch3.addConstraint(Sketcher.Constraint("DistanceY", 24, 3, 23, 3, Q("1 in")))
sketch3.addConstraint(Sketcher.Constraint("DistanceY", 25, 3, 24, 3, Q("1 in")))
sketch3.addConstraint(Sketcher.Constraint("DistanceY", 26, 3, 25, 3, Q("1 in")))
sketch3.addConstraint(Sketcher.Constraint("DistanceY", 27, 3, 26, 3, Q("1 in")))
sketch3.addConstraint(Sketcher.Constraint("DistanceY", 28, 3, 27, 3, Q("1 in")))
sketch3.addConstraint(Sketcher.Constraint("DistanceY", 29, 3, 28, 3, Q("1 in")))
sketch3.addConstraint(Sketcher.Constraint("DistanceY", 30, 3, 29, 3, Q("1 in")))
sketch3.addConstraint(Sketcher.Constraint("DistanceY", 31, 3, 30, 3, Q("1 in")))
sketch3.addConstraint(Sketcher.Constraint("DistanceY", 32, 3, 31, 3, Q("1 in")))
sketch3.addConstraint(Sketcher.Constraint("DistanceY", 33, 3, 32, 3, Q("1 in")))
sketch3.addConstraint(Sketcher.Constraint("DistanceY", 34, 3, 33, 3, Q("1 in")))
sketch3.addConstraint(Sketcher.Constraint("DistanceY", 35, 3, 34, 3, Q("1 in")))
sketch3.addConstraint(Sketcher.Constraint("DistanceY", 36, 3, 35, 3, Q("1 in")))
sketch3.addConstraint(Sketcher.Constraint("DistanceY", 37, 3, 36, 3, Q("1 in")))
sketch3.addConstraint(Sketcher.Constraint("DistanceY", 38, 3, 37, 3, Q("1 in")))
sketch3.addConstraint(Sketcher.Constraint("DistanceY", 39, 3, 38, 3, Q("1 in")))
sketch3.addConstraint(Sketcher.Constraint("DistanceY", 40, 3, 39, 3, Q("1 in")))
sketch3.addConstraint(Sketcher.Constraint("DistanceY", 41, 3, 40, 3, Q("1 in")))
sketch3.addConstraint(Sketcher.Constraint("DistanceY", 42, 3, 41, 3, Q("1 in")))
sketch3.addConstraint(Sketcher.Constraint("DistanceY", 43, 3, 42, 3, Q("1 in")))
sketch3.addConstraint(Sketcher.Constraint("DistanceY", 44, 3, 43, 3, Q("1 in")))
sketch3.addConstraint(Sketcher.Constraint("DistanceY", 45, 3, 44, 3, Q("1 in")))
sketch3.addConstraint(Sketcher.Constraint("DistanceY", 46, 3, 45, 3, Q("1 in")))
sketch3.addConstraint(Sketcher.Constraint("DistanceY", 47, 3, 46, 3, Q("1 in")))
sketch3.addConstraint(Sketcher.Constraint("DistanceY", -1, 1, 0, 3, Q("47.5 in")))
sketch3.addConstraint(Sketcher.Constraint("DistanceX", -1, 1, 0, 3, Q("0.625 in")))
pocket2 = doc.addObject("PartDesign::Pocket", "Pocket001")
body.addObject(pocket2)
pocket2.Profile = sketch3
pocket2.Length = Q("0.05 in")
doc.recompute()

fillet = doc.addObject("PartDesign::Fillet", "Fillet")
body.addObject(fillet)
fillet.Base = (pocket2, edges_at(pocket2, [(0, 609.6, 0)]))
fillet.Radius = Q("0.125 in")
doc.recompute()

fillet2 = doc.addObject("PartDesign::Fillet", "Fillet001")
body.addObject(fillet2)
fillet2.Base = (fillet, edges_at(fillet, [(1.27, 609.6, -1.27)]))
fillet2.Radius = Q("0.0625 in")

doc.recompute()
